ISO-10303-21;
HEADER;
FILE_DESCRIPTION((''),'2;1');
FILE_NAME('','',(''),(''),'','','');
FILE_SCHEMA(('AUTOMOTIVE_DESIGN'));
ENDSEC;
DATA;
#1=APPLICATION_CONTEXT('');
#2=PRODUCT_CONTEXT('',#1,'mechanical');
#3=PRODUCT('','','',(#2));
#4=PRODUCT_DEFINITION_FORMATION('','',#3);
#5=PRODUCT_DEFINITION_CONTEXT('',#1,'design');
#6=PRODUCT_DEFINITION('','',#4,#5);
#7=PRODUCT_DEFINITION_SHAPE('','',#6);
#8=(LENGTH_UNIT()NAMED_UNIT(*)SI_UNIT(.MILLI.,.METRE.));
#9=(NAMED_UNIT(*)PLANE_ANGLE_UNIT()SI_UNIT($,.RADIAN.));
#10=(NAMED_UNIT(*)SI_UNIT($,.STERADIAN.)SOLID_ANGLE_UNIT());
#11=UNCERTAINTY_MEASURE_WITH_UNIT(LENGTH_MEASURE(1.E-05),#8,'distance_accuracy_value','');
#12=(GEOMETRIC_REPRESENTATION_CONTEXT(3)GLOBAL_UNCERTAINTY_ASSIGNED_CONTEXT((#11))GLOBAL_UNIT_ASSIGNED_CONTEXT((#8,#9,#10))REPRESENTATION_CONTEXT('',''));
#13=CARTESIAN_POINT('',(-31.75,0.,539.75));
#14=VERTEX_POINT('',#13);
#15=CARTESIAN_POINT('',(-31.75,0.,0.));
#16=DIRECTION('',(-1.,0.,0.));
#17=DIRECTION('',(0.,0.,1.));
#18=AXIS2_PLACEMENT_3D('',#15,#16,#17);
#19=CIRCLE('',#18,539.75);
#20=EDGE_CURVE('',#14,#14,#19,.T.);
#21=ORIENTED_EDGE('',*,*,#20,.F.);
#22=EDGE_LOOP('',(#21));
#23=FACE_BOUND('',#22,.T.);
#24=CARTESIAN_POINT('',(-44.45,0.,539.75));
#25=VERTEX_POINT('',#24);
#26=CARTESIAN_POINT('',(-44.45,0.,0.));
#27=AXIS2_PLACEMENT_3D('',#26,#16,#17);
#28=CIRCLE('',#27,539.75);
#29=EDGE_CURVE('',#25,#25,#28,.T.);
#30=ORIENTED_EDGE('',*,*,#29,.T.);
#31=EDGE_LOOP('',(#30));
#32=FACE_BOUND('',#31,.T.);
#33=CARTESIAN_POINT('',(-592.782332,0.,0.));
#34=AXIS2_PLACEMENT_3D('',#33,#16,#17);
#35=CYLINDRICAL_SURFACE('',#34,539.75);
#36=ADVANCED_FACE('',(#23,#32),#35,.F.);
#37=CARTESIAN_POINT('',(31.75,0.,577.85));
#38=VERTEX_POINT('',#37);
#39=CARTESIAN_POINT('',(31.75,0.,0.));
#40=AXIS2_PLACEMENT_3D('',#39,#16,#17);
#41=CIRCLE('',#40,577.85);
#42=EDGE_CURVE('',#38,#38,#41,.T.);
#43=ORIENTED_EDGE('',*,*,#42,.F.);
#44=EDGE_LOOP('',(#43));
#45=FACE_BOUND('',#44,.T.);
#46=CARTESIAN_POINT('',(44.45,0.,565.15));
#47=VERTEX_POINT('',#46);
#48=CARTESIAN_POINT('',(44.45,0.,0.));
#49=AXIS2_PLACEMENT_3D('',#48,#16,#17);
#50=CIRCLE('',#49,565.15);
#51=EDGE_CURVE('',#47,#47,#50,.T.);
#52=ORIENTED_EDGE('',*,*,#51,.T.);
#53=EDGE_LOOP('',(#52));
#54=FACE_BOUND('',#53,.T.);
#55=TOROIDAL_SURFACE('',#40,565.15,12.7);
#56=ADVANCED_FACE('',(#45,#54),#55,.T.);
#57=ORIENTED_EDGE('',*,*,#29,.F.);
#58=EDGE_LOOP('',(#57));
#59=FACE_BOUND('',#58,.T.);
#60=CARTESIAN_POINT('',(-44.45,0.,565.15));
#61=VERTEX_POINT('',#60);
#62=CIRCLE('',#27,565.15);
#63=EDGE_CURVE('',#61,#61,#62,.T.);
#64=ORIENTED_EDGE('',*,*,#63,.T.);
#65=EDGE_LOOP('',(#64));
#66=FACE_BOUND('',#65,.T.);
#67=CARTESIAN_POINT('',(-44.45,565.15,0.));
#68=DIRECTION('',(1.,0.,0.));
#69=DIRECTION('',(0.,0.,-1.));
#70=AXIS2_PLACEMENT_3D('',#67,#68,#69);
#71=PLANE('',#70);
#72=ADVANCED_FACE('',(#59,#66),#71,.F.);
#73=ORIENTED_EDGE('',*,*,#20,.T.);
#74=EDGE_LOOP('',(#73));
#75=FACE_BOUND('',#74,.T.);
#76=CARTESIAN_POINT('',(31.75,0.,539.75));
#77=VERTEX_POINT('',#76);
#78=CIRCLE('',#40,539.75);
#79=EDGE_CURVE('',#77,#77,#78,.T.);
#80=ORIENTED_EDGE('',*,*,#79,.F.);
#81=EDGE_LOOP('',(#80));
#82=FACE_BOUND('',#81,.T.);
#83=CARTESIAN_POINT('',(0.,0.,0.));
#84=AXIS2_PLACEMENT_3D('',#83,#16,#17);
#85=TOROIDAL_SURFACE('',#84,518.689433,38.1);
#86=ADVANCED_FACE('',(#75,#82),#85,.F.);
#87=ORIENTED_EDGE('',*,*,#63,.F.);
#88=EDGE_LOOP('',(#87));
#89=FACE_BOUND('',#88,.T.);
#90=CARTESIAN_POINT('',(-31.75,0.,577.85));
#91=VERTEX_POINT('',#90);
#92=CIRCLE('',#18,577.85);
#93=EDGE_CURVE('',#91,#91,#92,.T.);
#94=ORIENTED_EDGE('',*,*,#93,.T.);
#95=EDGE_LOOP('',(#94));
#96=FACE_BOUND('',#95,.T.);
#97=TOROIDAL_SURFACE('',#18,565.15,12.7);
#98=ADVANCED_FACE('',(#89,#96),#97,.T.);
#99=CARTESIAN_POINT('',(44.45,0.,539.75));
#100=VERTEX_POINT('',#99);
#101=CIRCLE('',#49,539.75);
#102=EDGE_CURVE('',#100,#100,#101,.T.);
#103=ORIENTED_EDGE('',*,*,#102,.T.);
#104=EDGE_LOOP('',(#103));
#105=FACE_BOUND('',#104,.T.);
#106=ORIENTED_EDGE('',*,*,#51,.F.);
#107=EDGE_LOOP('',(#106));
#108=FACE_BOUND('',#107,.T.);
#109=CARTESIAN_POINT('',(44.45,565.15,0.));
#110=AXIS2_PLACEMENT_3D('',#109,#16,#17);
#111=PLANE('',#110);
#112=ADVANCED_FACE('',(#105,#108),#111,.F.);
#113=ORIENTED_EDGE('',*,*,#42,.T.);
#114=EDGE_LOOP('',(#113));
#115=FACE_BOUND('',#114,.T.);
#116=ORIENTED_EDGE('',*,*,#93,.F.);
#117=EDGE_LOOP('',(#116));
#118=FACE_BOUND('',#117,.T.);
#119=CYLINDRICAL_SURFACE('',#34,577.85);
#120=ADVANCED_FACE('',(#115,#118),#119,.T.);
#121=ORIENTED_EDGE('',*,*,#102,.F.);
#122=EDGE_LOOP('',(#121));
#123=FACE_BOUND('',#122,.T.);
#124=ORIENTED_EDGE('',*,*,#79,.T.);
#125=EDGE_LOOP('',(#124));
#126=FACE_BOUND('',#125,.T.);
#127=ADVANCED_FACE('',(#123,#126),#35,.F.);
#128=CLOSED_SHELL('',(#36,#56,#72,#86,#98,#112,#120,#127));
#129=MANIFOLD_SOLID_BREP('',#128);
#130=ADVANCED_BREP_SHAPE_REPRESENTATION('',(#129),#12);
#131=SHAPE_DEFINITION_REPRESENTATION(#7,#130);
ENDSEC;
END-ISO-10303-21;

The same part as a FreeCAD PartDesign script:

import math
import FreeCAD as App
import Part
import Sketcher

V = App.Vector
Q = App.Units.Quantity

doc = App.newDocument("Part")
body = doc.addObject("PartDesign::Body", "Body")

# Sketch on XY plane
sketch1 = doc.addObject("Sketcher::SketchObject", "Sketch")
body.addObject(sketch1)
sketch1.AttachmentSupport = (doc.XY_Plane, [""])
sketch1.MapMode = "FlatFace"
sketch1.addGeometry(Part.LineSegment(V(32, 540, 0), V(44, 540, 0)), False)
sketch1.addGeometry(Part.LineSegment(V(44, 540, 0), V(44, 565, 0)), False)
sketch1.addGeometry(Part.ArcOfCircle(Part.Circle(V(32, 565, 0), V(0, 0, 1), 13), math.radians(0), math.radians(90)), False)
sketch1.addGeometry(Part.LineSegment(V(32, 578, 0), V(-32, 578, 0)), False)
sketch1.addGeometry(Part.ArcOfCircle(Part.Circle(V(-32, 565, 0), V(0, 0, 1), 13), math.radians(90), math.radians(180)), False)
sketch1.addGeometry(Part.LineSegment(V(-44, 565, 0), V(-44, 540, 0)), False)
sketch1.addGeometry(Part.LineSegment(V(-44, 540, 0), V(-32, 540, 0)), False)
sketch1.addGeometry(Part.ArcOfCircle(Part.Circle(V(0, 519, 0), V(0, 0, 1), 38), math.radians(34), math.radians(146)), False)
sketch1.addConstraint(Sketcher.Constraint("Coincident", 0, 2, 1, 1))
sketch1.addConstraint(Sketcher.Constraint("Tangent", 1, 2, 2, 1))
sketch1.addConstraint(Sketcher.Constraint("Tangent", 2, 2, 3, 1))
sketch1.addConstraint(Sketcher.Constraint("Tangent", 3, 2, 4, 1))
sketch1.addConstraint(Sketcher.Constraint("Tangent", 4, 2, 5, 1))
sketch1.addConstraint(Sketcher.Constraint("Coincident", 5, 2, 6, 1))
sketch1.addConstraint(Sketcher.Constraint("Coincident", 6, 2, 7, 2))
sketch1.addConstraint(Sketcher.Constraint("Coincident", 7, 1, 0, 1))
sketch1.addConstraint(Sketcher.Constraint("Horizontal", 0))
sketch1.addConstraint(Sketcher.Constraint("Vertical", 1))
sketch1.addConstraint(Sketcher.Constraint("Horizontal", 3))
sketch1.addConstraint(Sketcher.Constraint("Vertical", 5))
sketch1.addConstraint(Sketcher.Constraint("Horizontal", 6))
sketch1.addConstraint(Sketcher.Constraint("Equal", 2, 4))
sketch1.addConstraint(Sketcher.Constraint("Symmetric", 0, 2, 5, 2, -2))
sketch1.addConstraint(Sketcher.Constraint("PointOnObject", 7, 3, -2))
sketch1.addConstraint(Sketcher.Constraint("Vertical", 3, 2, 6, 2))
sketch1.addConstraint(Sketcher.Constraint("Radius", 2, Q("0.5 in")))
sketch1.addConstraint(Sketcher.Constraint("Radius", 7, Q("1.5 in")))
sketch1.addConstraint(Sketcher.Constraint("DistanceY", 1, 1, 1, 2, Q("1 in")))
sketch1.addConstraint(Sketcher.Constraint("DistanceX", 3, 2, 3, 1, Q("2.5 in")))
sketch1.addConstraint(Sketcher.Constraint("DistanceY", -1, 1, 2, 3, Q("22.25 in")))
revolution = doc.addObject("PartDesign::Revolution", "Revolution")
body.addObject(revolution)
revolution.Profile = sketch1
revolution.ReferenceAxis = (sketch1, ["H_Axis"])
revolution.Angle = 360

doc.recompute()
